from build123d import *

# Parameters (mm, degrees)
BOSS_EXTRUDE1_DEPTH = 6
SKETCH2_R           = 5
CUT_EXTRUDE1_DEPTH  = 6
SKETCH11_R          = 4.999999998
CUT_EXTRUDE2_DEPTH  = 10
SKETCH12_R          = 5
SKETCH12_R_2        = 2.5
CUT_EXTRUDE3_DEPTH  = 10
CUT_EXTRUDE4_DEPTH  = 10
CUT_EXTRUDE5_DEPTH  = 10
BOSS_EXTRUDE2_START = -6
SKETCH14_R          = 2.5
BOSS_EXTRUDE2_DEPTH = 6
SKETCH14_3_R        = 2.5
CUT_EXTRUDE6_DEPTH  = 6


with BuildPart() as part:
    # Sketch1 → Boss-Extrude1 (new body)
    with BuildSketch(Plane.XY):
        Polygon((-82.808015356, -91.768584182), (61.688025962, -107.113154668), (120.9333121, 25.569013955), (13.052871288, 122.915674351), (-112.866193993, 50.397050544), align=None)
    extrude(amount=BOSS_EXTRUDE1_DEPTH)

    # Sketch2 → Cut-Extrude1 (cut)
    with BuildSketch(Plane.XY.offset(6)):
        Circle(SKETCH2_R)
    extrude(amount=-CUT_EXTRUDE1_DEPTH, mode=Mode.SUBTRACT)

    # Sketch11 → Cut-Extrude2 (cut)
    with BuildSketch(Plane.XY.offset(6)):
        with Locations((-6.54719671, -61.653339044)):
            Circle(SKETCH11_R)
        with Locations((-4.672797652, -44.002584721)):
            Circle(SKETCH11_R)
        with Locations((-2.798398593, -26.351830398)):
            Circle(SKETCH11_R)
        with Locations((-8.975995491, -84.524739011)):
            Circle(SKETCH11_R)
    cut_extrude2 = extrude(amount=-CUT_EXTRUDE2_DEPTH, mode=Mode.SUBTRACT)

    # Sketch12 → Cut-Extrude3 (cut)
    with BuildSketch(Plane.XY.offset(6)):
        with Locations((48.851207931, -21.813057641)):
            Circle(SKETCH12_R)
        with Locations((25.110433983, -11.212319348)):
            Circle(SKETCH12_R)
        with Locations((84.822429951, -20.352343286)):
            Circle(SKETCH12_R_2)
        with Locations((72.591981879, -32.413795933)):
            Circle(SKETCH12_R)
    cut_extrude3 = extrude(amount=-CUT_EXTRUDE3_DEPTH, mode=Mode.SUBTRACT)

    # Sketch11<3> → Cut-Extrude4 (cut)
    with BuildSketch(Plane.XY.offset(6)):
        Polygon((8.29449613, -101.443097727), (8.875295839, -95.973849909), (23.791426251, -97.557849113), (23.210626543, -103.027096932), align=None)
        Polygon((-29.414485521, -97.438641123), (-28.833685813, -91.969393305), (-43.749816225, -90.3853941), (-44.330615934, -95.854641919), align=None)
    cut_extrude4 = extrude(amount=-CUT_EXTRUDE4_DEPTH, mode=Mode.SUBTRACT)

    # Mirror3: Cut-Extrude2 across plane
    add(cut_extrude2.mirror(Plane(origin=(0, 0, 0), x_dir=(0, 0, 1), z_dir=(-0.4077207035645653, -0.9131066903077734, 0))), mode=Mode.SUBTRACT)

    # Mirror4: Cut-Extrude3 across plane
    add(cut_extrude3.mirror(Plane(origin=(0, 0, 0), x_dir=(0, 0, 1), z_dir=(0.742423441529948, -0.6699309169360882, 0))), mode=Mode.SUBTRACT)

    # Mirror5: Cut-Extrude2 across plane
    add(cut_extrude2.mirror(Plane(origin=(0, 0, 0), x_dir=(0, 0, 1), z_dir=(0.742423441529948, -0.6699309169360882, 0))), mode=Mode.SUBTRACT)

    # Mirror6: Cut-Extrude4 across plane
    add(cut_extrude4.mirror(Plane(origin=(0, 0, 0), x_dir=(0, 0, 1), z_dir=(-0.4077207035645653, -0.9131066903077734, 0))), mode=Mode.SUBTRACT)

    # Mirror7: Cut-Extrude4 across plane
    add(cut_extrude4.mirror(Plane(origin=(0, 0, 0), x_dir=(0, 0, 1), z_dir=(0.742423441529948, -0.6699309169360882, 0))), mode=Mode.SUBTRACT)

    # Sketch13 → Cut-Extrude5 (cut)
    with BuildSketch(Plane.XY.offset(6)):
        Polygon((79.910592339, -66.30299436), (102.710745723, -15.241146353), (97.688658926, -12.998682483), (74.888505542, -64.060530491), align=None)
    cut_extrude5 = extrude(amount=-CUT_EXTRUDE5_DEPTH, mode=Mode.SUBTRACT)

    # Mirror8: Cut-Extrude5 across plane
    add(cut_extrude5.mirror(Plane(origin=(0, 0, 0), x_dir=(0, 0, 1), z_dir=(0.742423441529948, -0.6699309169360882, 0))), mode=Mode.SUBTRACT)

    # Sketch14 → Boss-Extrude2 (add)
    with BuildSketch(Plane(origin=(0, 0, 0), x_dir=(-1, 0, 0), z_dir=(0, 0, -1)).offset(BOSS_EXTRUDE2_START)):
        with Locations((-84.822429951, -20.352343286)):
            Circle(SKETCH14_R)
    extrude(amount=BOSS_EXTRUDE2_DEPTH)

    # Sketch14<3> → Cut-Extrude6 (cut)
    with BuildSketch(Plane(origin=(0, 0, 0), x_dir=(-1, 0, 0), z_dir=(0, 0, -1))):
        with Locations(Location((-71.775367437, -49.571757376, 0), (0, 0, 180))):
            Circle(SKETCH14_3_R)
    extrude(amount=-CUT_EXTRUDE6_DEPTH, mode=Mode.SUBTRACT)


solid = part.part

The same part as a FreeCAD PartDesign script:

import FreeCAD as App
import Part
import Sketcher

V = App.Vector
Q = App.Units.Quantity


def add_polygon(sketch, points):
    """Adds a closed chain of lines whose ends are joined by coincident constraints."""
    first, n = sketch.GeometryCount, len(points)
    for a, b in zip(points, points[1:] + points[:1]):
        sketch.addGeometry(Part.LineSegment(App.Vector(*a, 0), App.Vector(*b, 0)), False)
    for i in range(n):
        sketch.addConstraint(Sketcher.Constraint("Coincident", first + i, 2, first + (i + 1) % n, 1))

doc = App.newDocument("Part")
body = doc.addObject("PartDesign::Body", "Body")

# Sketch on XY plane
sketch1 = doc.addObject("Sketcher::SketchObject", "Sketch")
body.addObject(sketch1)
sketch1.AttachmentSupport = (doc.XY_Plane, [""])
sketch1.MapMode = "FlatFace"
add_polygon(sketch1, [(-82.808015, -91.768584), (61.688026, -107.113155), (120.933312, 25.569014), (13.052871, 122.915674), (-112.866194, 50.397051)])  # lines 0-4
sketch1.addConstraint([
    Sketcher.Constraint("Equal", 0, 1),
    Sketcher.Constraint("Equal", 1, 2),
    Sketcher.Constraint("Equal", 2, 3),
    Sketcher.Constraint("Equal", 3, 4),
    Sketcher.Constraint("DistanceY", 4, 2, 1, 2, Q("117.337598 mm")),
    Sketcher.Constraint("DistanceX", -1, 1, 2, 2, Q("13.052871 mm")),
    Sketcher.Constraint("DistanceY", -1, 1, 3, 2, Q("50.397051 mm")),
    Sketcher.Constraint("DistanceY", 0, 2, 1, 2, Q("132.682169 mm")),
    Sketcher.Constraint("DistanceX", 2, 2, 1, 2, Q("107.880441 mm")),
    Sketcher.Constraint("DistanceY", 1, 2, 2, 2, Q("97.34666 mm")),
])
pad1 = doc.addObject("PartDesign::Pad", "Pad")
body.addObject(pad1)
pad1.Profile = sketch1
pad1.Length = 6

# Sketch on XY plane
sketch2 = doc.addObject("Sketcher::SketchObject", "Sketch001")
body.addObject(sketch2)
sketch2.AttachmentSupport = (doc.XY_Plane, [""])
sketch2.MapMode = "FlatFace"
sketch2.AttachmentOffset = App.Placement(V(0, 0, 6), App.Rotation())
sketch2.addGeometry(Part.Circle(V(0, 0, 0), V(0, 0, 1), 5), False)
sketch2.addConstraint([
    Sketcher.Constraint("Coincident", 0, 3, -1, 1),
    Sketcher.Constraint("Diameter", 0, Q("10 mm")),
])
pocket1 = doc.addObject("PartDesign::Pocket", "Pocket")
body.addObject(pocket1)
pocket1.Profile = sketch2
pocket1.Length = 6

# Sketch on XY plane
sketch3 = doc.addObject("Sketcher::SketchObject", "Sketch002")
body.addObject(sketch3)
sketch3.AttachmentSupport = (doc.XY_Plane, [""])
sketch3.MapMode = "FlatFace"
sketch3.AttachmentOffset = App.Placement(V(0, 0, 6), App.Rotation())
sketch3.addGeometry([
    Part.Circle(V(-6.547197, -61.653339, 0), V(0, 0, 1), 5),
    Part.Circle(V(-4.672798, -44.002585, 0), V(0, 0, 1), 5),
    Part.Circle(V(-2.798399, -26.35183, 0), V(0, 0, 1), 5),
    Part.Circle(V(-8.975995, -84.524739, 0), V(0, 0, 1), 5),
], False)
sketch3.addConstraint([
    Sketcher.Constraint("Equal", 0, 1),
    Sketcher.Constraint("Equal", 1, 2),
    Sketcher.Constraint("Equal", 2, 3),
    Sketcher.Constraint("Diameter", 0, Q("10 mm")),
    Sketcher.Constraint("DistanceX", 2, 3, -1, 1, Q("2.798399 mm")),
    Sketcher.Constraint("DistanceX", 0, 3, 1, 3, Q("1.874399 mm")),
    Sketcher.Constraint("DistanceX", 1, 3, 2, 3, Q("1.874399 mm")),
    Sketcher.Constraint("DistanceX", 3, 3, 0, 3, Q("2.428799 mm")),
    Sketcher.Constraint("DistanceY", 3, 3, 0, 3, Q("22.8714 mm")),
    Sketcher.Constraint("DistanceY", 0, 3, -1, 1, Q("61.653339 mm")),
    Sketcher.Constraint("DistanceY", 2, 3, -1, 1, Q("26.35183 mm")),
    Sketcher.Constraint("DistanceY", 1, 3, -1, 1, Q("44.002585 mm")),
])
pocket2 = doc.addObject("PartDesign::Pocket", "Pocket001")
body.addObject(pocket2)
pocket2.Profile = sketch3
pocket2.Length = 10

# Sketch on XY plane
sketch4 = doc.addObject("Sketcher::SketchObject", "Sketch003")
body.addObject(sketch4)
sketch4.AttachmentSupport = (doc.XY_Plane, [""])
sketch4.MapMode = "FlatFace"
sketch4.AttachmentOffset = App.Placement(V(0, 0, 6), App.Rotation())
sketch4.addGeometry([
    Part.Circle(V(48.851208, -21.813058, 0), V(0, 0, 1), 5),
    Part.Circle(V(25.110434, -11.212319, 0), V(0, 0, 1), 5),
    Part.Circle(V(84.82243, -20.352343, 0), V(0, 0, 1), 2.5),
    Part.Circle(V(72.591982, -32.413796, 0), V(0, 0, 1), 5),
], False)
sketch4.addConstraint([
    Sketcher.Constraint("Equal", 0, 1),
    Sketcher.Constraint("Equal", 1, 3),
    Sketcher.Constraint("Diameter", 0, Q("10 mm")),
    Sketcher.Constraint("Diameter", 2, Q("5 mm")),
    Sketcher.Constraint("DistanceY", 1, 3, -1, 1, Q("11.212319 mm")),
    Sketcher.Constraint("DistanceX", -1, 1, 2, 3, Q("84.82243 mm")),
    Sketcher.Constraint("DistanceX", -1, 1, 3, 3, Q("72.591982 mm")),
    Sketcher.Constraint("DistanceY", 0, 3, 1, 3, Q("10.600738 mm")),
    Sketcher.Constraint("DistanceY", 3, 3, 0, 3, Q("10.600738 mm")),
    Sketcher.Constraint("DistanceX", -1, 1, 0, 3, Q("48.851208 mm")),
    Sketcher.Constraint("DistanceX", -1, 1, 1, 3, Q("25.110434 mm")),
    Sketcher.Constraint("DistanceY", 2, 3, -1, 1, Q("20.352343 mm")),
])
pocket3 = doc.addObject("PartDesign::Pocket", "Pocket002")
body.addObject(pocket3)
pocket3.Profile = sketch4
pocket3.Length = 10

# Sketch on XY plane
sketch5 = doc.addObject("Sketcher::SketchObject", "Sketch004")
body.addObject(sketch5)
sketch5.AttachmentSupport = (doc.XY_Plane, [""])
sketch5.MapMode = "FlatFace"
sketch5.AttachmentOffset = App.Placement(V(0, 0, 6), App.Rotation())
add_polygon(sketch5, [(8.875296, -95.97385), (8.294496, -101.443098), (23.210627, -103.027097), (23.791426, -97.557849)])  # lines 0-3
add_polygon(sketch5, [(-29.414486, -97.438641), (-28.833686, -91.969393), (-43.749816, -90.385394), (-44.330616, -95.854642)])  # lines 4-7
sketch5.addConstraint([
    Sketcher.Constraint("Perpendicular", 0, 1),
    Sketcher.Constraint("Perpendicular", 1, 2),
    Sketcher.Constraint("Perpendicular", 2, 3),
    Sketcher.Constraint("Perpendicular", 3, 4),
    Sketcher.Constraint("Perpendicular", 4, 5),
    Sketcher.Constraint("Perpendicular", 5, 6),
    Sketcher.Constraint("Perpendicular", 6, 7),
    Sketcher.Constraint("Equal", 2, 4),
    Sketcher.Constraint("Equal", 3, 5),
    Sketcher.Constraint("Distance", 1, Q("15 mm")),
    Sketcher.Constraint("Distance", 0, Q("5.5 mm")),
    Sketcher.Constraint("DistanceY", 1, 2, 0, 2, Q("1.583999 mm")),
    Sketcher.Constraint("DistanceY", 2, 2, -1, 1, Q("97.557849 mm")),
    Sketcher.Constraint("DistanceY", 6, 2, -1, 1, Q("95.854642 mm")),
    Sketcher.Constraint("DistanceX", 4, 2, 3, 2, Q("37.708982 mm")),
    Sketcher.Constraint("DistanceX", -1, 1, 0, 2, Q("8.294496 mm")),
])
pocket4 = doc.addObject("PartDesign::Pocket", "Pocket003")
body.addObject(pocket4)
pocket4.Profile = sketch5
pocket4.Length = 10
doc.recompute()

datumplane = doc.addObject("PartDesign::Plane", "DatumPlane")
body.addObject(datumplane)
datumplane.Placement = App.Placement(V(0, 0, 0), App.Rotation(V(-0.91310669, 0.407720704, 0), V(0, 0, -1), V(-0.407720704, -0.91310669, 0), "ZXY"))
mirrored = doc.addObject("PartDesign::Mirrored", "Mirrored")
body.addObject(mirrored)
mirrored.Originals = [pocket2]
mirrored.MirrorPlane = (datumplane, [""])
body.Tip = mirrored
doc.recompute()

datumplane2 = doc.addObject("PartDesign::Plane", "DatumPlane001")
body.addObject(datumplane2)
datumplane2.Placement = App.Placement(V(0, 0, 0), App.Rotation(V(-0.669930917, -0.742423442, 0), V(0, 0, -1), V(0.742423442, -0.669930917, 0), "ZXY"))
mirrored2 = doc.addObject("PartDesign::Mirrored", "Mirrored001")
body.addObject(mirrored2)
mirrored2.Originals = [pocket3]
mirrored2.MirrorPlane = (datumplane2, [""])
body.Tip = mirrored2
doc.recompute()

datumplane3 = doc.addObject("PartDesign::Plane", "DatumPlane002")
body.addObject(datumplane3)
datumplane3.Placement = App.Placement(V(0, 0, 0), App.Rotation(V(-0.669930917, -0.742423442, 0), V(0, 0, -1), V(0.742423442, -0.669930917, 0), "ZXY"))
mirrored3 = doc.addObject("PartDesign::Mirrored", "Mirrored002")
body.addObject(mirrored3)
mirrored3.Originals = [pocket2]
mirrored3.MirrorPlane = (datumplane3, [""])
body.Tip = mirrored3
doc.recompute()

datumplane4 = doc.addObject("PartDesign::Plane", "DatumPlane003")
body.addObject(datumplane4)
datumplane4.Placement = App.Placement(V(0, 0, 0), App.Rotation(V(-0.91310669, 0.407720704, 0), V(0, 0, -1), V(-0.407720704, -0.91310669, 0), "ZXY"))
mirrored4 = doc.addObject("PartDesign::Mirrored", "Mirrored003")
body.addObject(mirrored4)
mirrored4.Originals = [pocket4]
mirrored4.MirrorPlane = (datumplane4, [""])
body.Tip = mirrored4
doc.recompute()

datumplane5 = doc.addObject("PartDesign::Plane", "DatumPlane004")
body.addObject(datumplane5)
datumplane5.Placement = App.Placement(V(0, 0, 0), App.Rotation(V(-0.669930917, -0.742423442, 0), V(0, 0, -1), V(0.742423442, -0.669930917, 0), "ZXY"))
mirrored5 = doc.addObject("PartDesign::Mirrored", "Mirrored004")
body.addObject(mirrored5)
mirrored5.Originals = [pocket4]
mirrored5.MirrorPlane = (datumplane5, [""])
body.Tip = mirrored5

# Sketch on XY plane
sketch6 = doc.addObject("Sketcher::SketchObject", "Sketch005")
body.addObject(sketch6)
sketch6.AttachmentSupport = (doc.XY_Plane, [""])
sketch6.MapMode = "FlatFace"
sketch6.AttachmentOffset = App.Placement(V(0, 0, 6), App.Rotation())
add_polygon(sketch6, [(79.910592, -66.302994), (102.710746, -15.241146), (97.688659, -12.998682), (74.888506, -64.06053)])  # lines 0-3
sketch6.addConstraint([
    Sketcher.Constraint("Perpendicular", 0, 1),
    Sketcher.Constraint("Perpendicular", 1, 2),
    Sketcher.Constraint("Perpendicular", 2, 3),
    Sketcher.Constraint("Distance", 1, Q("5.5 mm")),
    Sketcher.Constraint("Distance", 0, Q("55.92101 mm")),
    Sketcher.Constraint("DistanceX", -1, 1, 1, 2, Q("97.688659 mm")),
    Sketcher.Constraint("DistanceY", 2, 2, -1, 1, Q("64.06053 mm")),
    Sketcher.Constraint("DistanceY", 2, 2, 1, 2, Q("51.061848 mm")),
])
pocket5 = doc.addObject("PartDesign::Pocket", "Pocket004")
body.addObject(pocket5)
pocket5.Profile = sketch6
pocket5.Length = 10
doc.recompute()

datumplane6 = doc.addObject("PartDesign::Plane", "DatumPlane005")
body.addObject(datumplane6)
datumplane6.Placement = App.Placement(V(0, 0, 0), App.Rotation(V(-0.669930917, -0.742423442, 0), V(0, 0, -1), V(0.742423442, -0.669930917, 0), "ZXY"))
mirrored6 = doc.addObject("PartDesign::Mirrored", "Mirrored005")
body.addObject(mirrored6)
mirrored6.Originals = [pocket5]
mirrored6.MirrorPlane = (datumplane6, [""])
body.Tip = mirrored6

# Sketch on XY plane
sketch7 = doc.addObject("Sketcher::SketchObject", "Sketch006")
body.addObject(sketch7)
sketch7.AttachmentSupport = (doc.XY_Plane, [""])
sketch7.MapMode = "FlatFace"
sketch7.AttachmentOffset = App.Placement(V(0, 0, 6), App.Rotation())
sketch7.addGeometry(Part.Circle(V(84.82243, -20.352343, 0), V(0, 0, 1), 2.5), False)
sketch7.addConstraint([
    Sketcher.Constraint("Diameter", 0, Q("5 mm")),
    Sketcher.Constraint("DistanceX", -1, 1, 0, 3, Q("84.82243 mm")),
    Sketcher.Constraint("DistanceY", 0, 3, -1, 1, Q("20.352343 mm")),
])
pad2 = doc.addObject("PartDesign::Pad", "Pad001")
body.addObject(pad2)
pad2.Profile = sketch7
pad2.Length = 6
pad2.Reversed = True

# Sketch on XY plane
sketch8 = doc.addObject("Sketcher::SketchObject", "Sketch007")
body.addObject(sketch8)
sketch8.AttachmentSupport = (doc.XY_Plane, [""])
sketch8.MapMode = "FlatFace"
sketch8.addGeometry(Part.Circle(V(71.775367, -49.571757, 0), V(0, 0, 1), 2.5), False)
sketch8.addConstraint([
    Sketcher.Constraint("Diameter", 0, Q("5 mm")),
    Sketcher.Constraint("DistanceX", -1, 1, 0, 3, Q("71.775367 mm")),
    Sketcher.Constraint("DistanceY", 0, 3, -1, 1, Q("49.571757 mm")),
])
pocket6 = doc.addObject("PartDesign::Pocket", "Pocket005")
body.addObject(pocket6)
pocket6.Profile = sketch8
pocket6.Length = 6
pocket6.Reversed = True

doc.recompute()
